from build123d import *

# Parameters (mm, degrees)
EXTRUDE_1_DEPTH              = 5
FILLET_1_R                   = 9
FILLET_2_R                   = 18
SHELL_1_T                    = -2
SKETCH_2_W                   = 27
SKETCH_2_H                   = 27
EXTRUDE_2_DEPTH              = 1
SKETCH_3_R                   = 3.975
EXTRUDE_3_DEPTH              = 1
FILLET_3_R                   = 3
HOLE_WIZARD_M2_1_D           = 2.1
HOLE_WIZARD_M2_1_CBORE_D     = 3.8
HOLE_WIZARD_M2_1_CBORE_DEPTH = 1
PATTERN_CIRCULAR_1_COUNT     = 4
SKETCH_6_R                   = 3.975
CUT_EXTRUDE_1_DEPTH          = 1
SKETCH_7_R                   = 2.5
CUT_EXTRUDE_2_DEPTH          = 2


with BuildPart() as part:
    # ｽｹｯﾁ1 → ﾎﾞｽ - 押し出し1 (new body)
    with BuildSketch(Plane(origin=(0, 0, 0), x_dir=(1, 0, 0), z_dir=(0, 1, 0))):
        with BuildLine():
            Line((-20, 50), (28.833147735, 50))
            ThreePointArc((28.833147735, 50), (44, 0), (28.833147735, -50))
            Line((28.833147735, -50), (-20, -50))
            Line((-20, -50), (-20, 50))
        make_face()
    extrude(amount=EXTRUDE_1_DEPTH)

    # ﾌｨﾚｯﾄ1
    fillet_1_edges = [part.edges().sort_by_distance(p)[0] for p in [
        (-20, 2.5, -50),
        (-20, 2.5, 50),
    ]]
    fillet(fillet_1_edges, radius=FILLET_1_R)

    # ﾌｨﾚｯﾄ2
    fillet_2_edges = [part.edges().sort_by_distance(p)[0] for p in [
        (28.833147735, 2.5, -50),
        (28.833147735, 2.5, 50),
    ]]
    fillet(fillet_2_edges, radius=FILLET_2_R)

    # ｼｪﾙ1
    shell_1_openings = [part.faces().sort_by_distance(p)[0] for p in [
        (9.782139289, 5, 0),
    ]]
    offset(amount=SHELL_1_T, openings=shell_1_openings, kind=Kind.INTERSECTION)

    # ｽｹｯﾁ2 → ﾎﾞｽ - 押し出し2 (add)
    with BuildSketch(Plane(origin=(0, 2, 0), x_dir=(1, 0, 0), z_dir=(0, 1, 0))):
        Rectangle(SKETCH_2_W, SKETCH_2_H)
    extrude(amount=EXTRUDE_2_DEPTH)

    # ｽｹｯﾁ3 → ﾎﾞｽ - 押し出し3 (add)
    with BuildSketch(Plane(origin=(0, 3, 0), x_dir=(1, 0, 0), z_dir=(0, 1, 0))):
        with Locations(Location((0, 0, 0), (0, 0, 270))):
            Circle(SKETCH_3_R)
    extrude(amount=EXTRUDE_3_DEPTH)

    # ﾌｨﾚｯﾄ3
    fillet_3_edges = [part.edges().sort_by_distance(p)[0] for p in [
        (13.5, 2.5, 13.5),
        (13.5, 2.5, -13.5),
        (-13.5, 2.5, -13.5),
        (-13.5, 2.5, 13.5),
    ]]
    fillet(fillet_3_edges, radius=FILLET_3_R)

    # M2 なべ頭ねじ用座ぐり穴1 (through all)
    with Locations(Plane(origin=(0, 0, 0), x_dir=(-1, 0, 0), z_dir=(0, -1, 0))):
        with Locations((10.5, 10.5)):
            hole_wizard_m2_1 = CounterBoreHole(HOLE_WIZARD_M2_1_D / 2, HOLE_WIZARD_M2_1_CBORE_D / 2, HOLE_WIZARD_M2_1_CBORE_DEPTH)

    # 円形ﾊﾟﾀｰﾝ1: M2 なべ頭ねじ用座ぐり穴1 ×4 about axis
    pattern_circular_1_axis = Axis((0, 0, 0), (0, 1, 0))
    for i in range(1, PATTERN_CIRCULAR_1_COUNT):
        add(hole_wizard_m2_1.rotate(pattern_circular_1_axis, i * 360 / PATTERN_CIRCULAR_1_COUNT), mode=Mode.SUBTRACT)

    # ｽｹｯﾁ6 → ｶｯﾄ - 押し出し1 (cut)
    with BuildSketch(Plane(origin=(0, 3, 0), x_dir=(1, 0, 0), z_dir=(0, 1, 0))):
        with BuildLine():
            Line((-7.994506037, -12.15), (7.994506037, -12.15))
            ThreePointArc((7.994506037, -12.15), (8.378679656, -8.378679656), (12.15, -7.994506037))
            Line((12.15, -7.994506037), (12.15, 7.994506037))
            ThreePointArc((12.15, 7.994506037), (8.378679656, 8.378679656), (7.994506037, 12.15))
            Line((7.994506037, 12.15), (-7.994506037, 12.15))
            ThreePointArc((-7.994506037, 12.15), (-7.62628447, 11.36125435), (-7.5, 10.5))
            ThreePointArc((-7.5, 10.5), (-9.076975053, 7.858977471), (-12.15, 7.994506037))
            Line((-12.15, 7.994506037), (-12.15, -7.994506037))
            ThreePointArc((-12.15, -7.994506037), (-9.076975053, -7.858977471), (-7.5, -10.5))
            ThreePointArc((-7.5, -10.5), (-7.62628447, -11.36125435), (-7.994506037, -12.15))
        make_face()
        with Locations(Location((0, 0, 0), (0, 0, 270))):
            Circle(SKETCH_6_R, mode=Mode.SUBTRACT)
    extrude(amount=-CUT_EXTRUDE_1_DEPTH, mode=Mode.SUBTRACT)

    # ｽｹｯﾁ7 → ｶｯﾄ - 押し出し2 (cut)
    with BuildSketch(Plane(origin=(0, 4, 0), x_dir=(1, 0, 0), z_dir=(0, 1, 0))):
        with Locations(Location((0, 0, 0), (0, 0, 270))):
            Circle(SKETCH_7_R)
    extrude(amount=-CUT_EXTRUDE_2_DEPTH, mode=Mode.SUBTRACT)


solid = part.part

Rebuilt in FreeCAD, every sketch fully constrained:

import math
import FreeCAD as App
import Part
import Sketcher

V = App.Vector


def edges_at(feature, points):
    """Names of the edges that pass closest to the given points."""
    edges = feature.Shape.Edges
    near = lambda p: min(range(len(edges)), key=lambda i: edges[i].distToShape(Part.Vertex(*p))[0])
    return sorted({f"Edge{near(p) + 1}" for p in points})


def faces_at(feature, points):
    """Names of the faces that lie closest to the given points."""
    faces = feature.Shape.Faces
    near = lambda p: min(range(len(faces)), key=lambda i: faces[i].distToShape(Part.Vertex(*p))[0])
    return sorted({f"Face{near(p) + 1}" for p in points})


def add_polygon(sketch, points):
    """Adds a closed chain of lines whose ends are joined by coincident constraints."""
    first, n = sketch.GeometryCount, len(points)
    for a, b in zip(points, points[1:] + points[:1]):
        sketch.addGeometry(Part.LineSegment(App.Vector(*a, 0), App.Vector(*b, 0)), False)
    for i in range(n):
        sketch.addConstraint(Sketcher.Constraint("Coincident", first + i, 2, first + (i + 1) % n, 1))

doc = App.newDocument("Part")
body = doc.addObject("PartDesign::Body", "Body")

# Sketch on XZ plane
sketch1 = body.newObject("Sketcher::SketchObject", "Sketch")
sketch1.AttachmentSupport = (doc.getObject("XZ_Plane"), [""])
sketch1.MapMode = "FlatFace"
sketch1.addGeometry([
    Part.LineSegment(V(29, -50, 0), V(-20, -50, 0)),
    Part.LineSegment(V(-20, -50, 0), V(-20, 50, 0)),
    Part.LineSegment(V(-20, 50, 0), V(29, 50, 0)),
    Part.ArcOfCircle(Part.Circle(V(-46, 0, 0), V(0, 0, 1), 90), math.radians(-34), math.radians(34)),
], False)
sketch1.addConstraint([
    Sketcher.Constraint("Coincident", 0, 2, 1, 1),
    Sketcher.Constraint("Coincident", 1, 2, 2, 1),
    Sketcher.Constraint("Coincident", 2, 2, 3, 2),
    Sketcher.Constraint("Coincident", 3, 1, 0, 1),
    Sketcher.Constraint("Horizontal", 0),
    Sketcher.Constraint("Vertical", 1),
    Sketcher.Constraint("Horizontal", 2),
    Sketcher.Constraint("Symmetric", 2, 2, 3, 1, -1),
    Sketcher.Constraint("Radius", 3, 90.0),
    Sketcher.Constraint("DistanceY", 1, 1, 1, 2, 100.0),
    Sketcher.Constraint("DistanceX", 3, 3, -1, 1, 46.0),
    Sketcher.Constraint("DistanceX", 0, 2, -1, 1, 20.0),
])
pad1 = body.newObject("PartDesign::Pad", "Pad")
pad1.Profile = sketch1
pad1.Length = 5
pad1.Reversed = True
doc.recompute()

fillet = body.newObject("PartDesign::Fillet", "Fillet")
fillet.Base = (pad1, edges_at(pad1, [(-20, 2.5, -50), (-20, 2.5, 50)]))
fillet.Radius = 9
doc.recompute()

fillet2 = body.newObject("PartDesign::Fillet", "Fillet001")
fillet2.Base = (fillet, edges_at(fillet, [(28.833, 2.5, -50), (28.833, 2.5, 50)]))
fillet2.Radius = 18
doc.recompute()

thickness = body.newObject("PartDesign::Thickness", "Thickness")
thickness.Base = (fillet2, faces_at(fillet2, [(12, 5, 0)]))
thickness.Value = 2
thickness.Reversed = True
thickness.Join = "Intersection"

# Sketch on XZ plane
sketch2 = body.newObject("Sketcher::SketchObject", "Sketch001")
sketch2.AttachmentSupport = (doc.getObject("XZ_Plane"), [""])
sketch2.MapMode = "FlatFace"
sketch2.AttachmentOffset = App.Placement(V(0, 0, -2), App.Rotation())
add_polygon(sketch2, [(-14, -14), (-14, 14), (14, 14), (14, -14)])  # lines 0-3
sketch2.addConstraint([
    Sketcher.Constraint("Vertical", 0),
    Sketcher.Constraint("Horizontal", 1),
    Sketcher.Constraint("Vertical", 2),
    Sketcher.Constraint("Horizontal", 3),
    Sketcher.Constraint("Symmetric", 0, 2, 2, 2, -1, 1),
    Sketcher.Constraint("Equal", 3, 0),
    Sketcher.Constraint("DistanceX", 1, 1, 1, 2, 27.0),
])
pad2 = body.newObject("PartDesign::Pad", "Pad001")
pad2.Profile = sketch2
pad2.Length = 1
pad2.Reversed = True

# Sketch on XZ plane
sketch3 = body.newObject("Sketcher::SketchObject", "Sketch002")
sketch3.AttachmentSupport = (doc.getObject("XZ_Plane"), [""])
sketch3.MapMode = "FlatFace"
sketch3.AttachmentOffset = App.Placement(V(0, 0, -3), App.Rotation())
sketch3.addGeometry(Part.Circle(V(0, 0, 0), V(0, 0, 1), 4), False)
sketch3.addConstraint([
    Sketcher.Constraint("Coincident", 0, 3, -1, 1),
    Sketcher.Constraint("Diameter", 0, 7.95),
])
pad3 = body.newObject("PartDesign::Pad", "Pad002")
pad3.Profile = sketch3
pad3.Length = 1
pad3.Reversed = True
doc.recompute()

fillet3 = body.newObject("PartDesign::Fillet", "Fillet002")
fillet3.Base = (pad3, edges_at(pad3, [
    (13.5, 2.5, 13.5),
    (13.5, 2.5, -13.5),
    (-13.5, 2.5, -13.5),
    (-13.5, 2.5, 13.5),
]))
fillet3.Radius = 3

# Sketch on XZ plane
sketch4 = body.newObject("Sketcher::SketchObject", "Sketch003")
sketch4.AttachmentSupport = (doc.getObject("XZ_Plane"), [""])
sketch4.MapMode = "FlatFace"
sketch4.addGeometry(Part.Circle(V(-10.5, -10.5, 0), V(0, 0, 1), 1.1), False)
sketch4.addConstraint([
    Sketcher.Constraint("Diameter", 0, 2.1),
    Sketcher.Constraint("DistanceX", 0, 3, -1, 1, 10.5),
    Sketcher.Constraint("DistanceY", 0, 3, -1, 1, 10.5),
])
doc.recompute()
hole = body.newObject("PartDesign::Hole", "Hole")
hole.Profile = sketch4
hole.ThreadType = "None"
hole.Diameter = 2.1
hole.DepthType = "ThroughAll"
hole.HoleCutType = "Counterbore"
hole.HoleCutDiameter = 3.8
hole.HoleCutDepth = 1
doc.recompute()

polarpattern = body.newObject("PartDesign::PolarPattern", "PolarPattern")
polarpattern.Originals = [hole]
polarpattern.Axis = (doc.getObject("Y_Axis"), [""])
polarpattern.Angle = 360
polarpattern.Occurrences = 4
body.Tip = polarpattern

# Sketch on XZ plane
sketch5 = body.newObject("Sketcher::SketchObject", "Sketch004")
sketch5.AttachmentSupport = (doc.getObject("XZ_Plane"), [""])
sketch5.MapMode = "FlatFace"
sketch5.AttachmentOffset = App.Placement(V(0, 0, -3), App.Rotation())
sketch5.addGeometry([
    Part.LineSegment(V(-8, 12.2, 0), V(8, 12.2, 0)),  # 0
    Part.ArcOfCircle(Part.Circle(V(10.5, 10.5, 0), V(0, 0, 1), 3), math.radians(147), math.radians(303)),  # 1
    Part.LineSegment(V(12.2, 8, 0), V(12.2, -8, 0)),  # 2
    Part.ArcOfCircle(Part.Circle(V(10.5, -10.5, 0), V(0, 0, 1), 3), math.radians(57), math.radians(213)),  # 3
    Part.LineSegment(V(8, -12.2, 0), V(-8, -12.2, 0)),  # 4
    Part.ArcOfCircle(Part.Circle(V(-10.5, -10.5, 0), V(0, 0, 1), 3), math.radians(-33), math.radians(0)),  # 5
    Part.ArcOfCircle(Part.Circle(V(-10.5, -10.5, 0), V(0, 0, 1), 3), math.radians(0), math.radians(123)),  # 6
    Part.LineSegment(V(-12.2, -8, 0), V(-12.2, 8, 0)),  # 7
    Part.ArcOfCircle(Part.Circle(V(-10.5, 10.5, 0), V(0, 0, 1), 3), math.radians(-123), math.radians(0)),  # 8
    Part.ArcOfCircle(Part.Circle(V(-10.5, 10.5, 0), V(0, 0, 1), 3), math.radians(0), math.radians(33)),  # 9
    Part.Circle(V(0, 0, 0), V(0, 0, 1), 4),  # 10
], False)
sketch5.addConstraint([
    Sketcher.Constraint("Coincident", 0, 2, 1, 1),
    Sketcher.Constraint("Coincident", 1, 2, 2, 1),
    Sketcher.Constraint("Coincident", 2, 2, 3, 1),
    Sketcher.Constraint("Coincident", 3, 2, 4, 1),
    Sketcher.Constraint("Coincident", 4, 2, 5, 1),
    Sketcher.Constraint("Tangent", 5, 2, 6, 1),
    Sketcher.Constraint("Coincident", 6, 2, 7, 1),
    Sketcher.Constraint("Coincident", 7, 2, 8, 1),
    Sketcher.Constraint("Tangent", 8, 2, 9, 1),
    Sketcher.Constraint("Coincident", 9, 2, 0, 1),
    Sketcher.Constraint("Horizontal", 0),
    Sketcher.Constraint("Vertical", 2),
    Sketcher.Constraint("Horizontal", 4),
    Sketcher.Constraint("Vertical", 7),
    Sketcher.Constraint("Coincident", 10, 3, -1, 1),
    Sketcher.Constraint("Equal", 1, 3),
    Sketcher.Constraint("Equal", 3, 5),
    Sketcher.Constraint("Equal", 5, 6),
    Sketcher.Constraint("Equal", 6, 8),
    Sketcher.Constraint("Equal", 8, 9),
    Sketcher.Constraint("Symmetric", 1, 3, 5, 3, -1, 1),
    Sketcher.Constraint("Symmetric", 3, 3, 8, 3, -1, 1),
    Sketcher.Constraint("Symmetric", 3, 3, 5, 3, -2),
    Sketcher.Constraint("Horizontal", 6, 3, 5, 2),
    Sketcher.Constraint("Horizontal", 2, 2, 6, 2),
    Sketcher.Constraint("Horizontal", 9, 3, 8, 2),
    Sketcher.Constraint("Vertical", 0, 2, 3, 2),
    Sketcher.Constraint("Equal", 4, 2),
    Sketcher.Constraint("Radius", 1, 3.0),
    Sketcher.Constraint("Diameter", 10, 7.95),
    Sketcher.Constraint("DistanceY", 3, 3, 1, 3, 21.0),
    Sketcher.Constraint("DistanceX", 5, 3, 3, 3, 21.0),
    Sketcher.Constraint("DistanceY", -1, 1, 0, 2, 12.15),
])
pocket1 = body.newObject("PartDesign::Pocket", "Pocket")
pocket1.Profile = sketch5
pocket1.Length = 1
pocket1.Reversed = True

# Sketch on XZ plane
sketch6 = body.newObject("Sketcher::SketchObject", "Sketch005")
sketch6.AttachmentSupport = (doc.getObject("XZ_Plane"), [""])
sketch6.MapMode = "FlatFace"
sketch6.AttachmentOffset = App.Placement(V(0, 0, -4), App.Rotation())
sketch6.addGeometry(Part.Circle(V(0, 0, 0), V(0, 0, 1), 2.5), False)
sketch6.addConstraint([
    Sketcher.Constraint("Coincident", 0, 3, -1, 1),
    Sketcher.Constraint("Diameter", 0, 5.0),
])
pocket2 = body.newObject("PartDesign::Pocket", "Pocket001")
pocket2.Profile = sketch6
pocket2.Length = 2
pocket2.Reversed = True

doc.recompute()
